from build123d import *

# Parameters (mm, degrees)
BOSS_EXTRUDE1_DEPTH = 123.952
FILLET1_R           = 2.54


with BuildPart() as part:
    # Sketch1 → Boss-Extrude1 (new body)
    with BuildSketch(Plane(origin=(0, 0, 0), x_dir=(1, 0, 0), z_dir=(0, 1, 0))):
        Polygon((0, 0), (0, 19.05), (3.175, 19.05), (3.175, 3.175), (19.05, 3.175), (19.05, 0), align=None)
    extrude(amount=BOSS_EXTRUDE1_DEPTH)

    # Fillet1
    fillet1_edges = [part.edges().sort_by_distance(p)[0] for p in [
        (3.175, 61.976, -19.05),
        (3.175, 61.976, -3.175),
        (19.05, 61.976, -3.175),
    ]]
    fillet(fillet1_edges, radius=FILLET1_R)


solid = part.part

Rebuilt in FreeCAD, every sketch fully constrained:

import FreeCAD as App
import Part
import Sketcher
from FreeCAD import Vector
Q = App.Units.Quantity


def edges_at(feature, points):
    """Names of the edges that pass closest to the given points."""
    edges = feature.Shape.Edges
    near = lambda p: min(range(len(edges)), key=lambda i: edges[i].distToShape(Part.Vertex(*p))[0])
    return sorted({f"Edge{near(p) + 1}" for p in points})

doc = App.newDocument("Part")
body = doc.addObject("PartDesign::Body", "Body")

# Sketch on XZ plane
sketch1 = doc.addObject("Sketcher::SketchObject", "Sketch")
body.addObject(sketch1)
sketch1.AttachmentSupport = (doc.XZ_Plane, [""])
sketch1.MapMode = "FlatFace"
sketch1.addGeometry([
    Part.LineSegment(Vector(0, -19.1, 0), Vector(0, 0, 0)),  # 0
    Part.LineSegment(Vector(0, 0, 0), Vector(19.1, 0, 0)),  # 1
    Part.LineSegment(Vector(19.1, 0, 0), Vector(19.1, -3.2, 0)),  # 2
    Part.LineSegment(Vector(19.1, -3.2, 0), Vector(3.2, -3.2, 0)),  # 3
    Part.LineSegment(Vector(3.2, -3.2, 0), Vector(3.2, -19.1, 0)),  # 4
    Part.LineSegment(Vector(3.2, -19.1, 0), Vector(0, -19.1, 0)),  # 5
], False)
sketch1.addConstraint([
    Sketcher.Constraint("Coincident", 0, 2, 1, 1),
    Sketcher.Constraint("Coincident", 1, 2, 2, 1),
    Sketcher.Constraint("Coincident", 2, 2, 3, 1),
    Sketcher.Constraint("Coincident", 3, 2, 4, 1),
    Sketcher.Constraint("Coincident", 4, 2, 5, 1),
    Sketcher.Constraint("Coincident", 5, 2, 0, 1),
    Sketcher.Constraint("Vertical", 0),
    Sketcher.Constraint("Horizontal", 1),
    Sketcher.Constraint("Vertical", 2),
    Sketcher.Constraint("Horizontal", 3),
    Sketcher.Constraint("Vertical", 4),
    Sketcher.Constraint("Horizontal", 5),
    Sketcher.Constraint("Coincident", 0, 2, -1, 1),
    Sketcher.Constraint("Equal", 1, 0),
    Sketcher.Constraint("Equal", 5, 2),
    Sketcher.Constraint("DistanceX", 1, 1, 1, 2, Q("0.75 in")),
    Sketcher.Constraint("DistanceX", 3, 2, 3, 1, Q("0.625 in")),
])
pad1 = doc.addObject("PartDesign::Pad", "Pad")
body.addObject(pad1)
pad1.Profile = sketch1
pad1.Length = Q("4.88 in")
pad1.Reversed = True
doc.recompute()

fillet = doc.addObject("PartDesign::Fillet", "Fillet")
body.addObject(fillet)
fillet.Base = (pad1, edges_at(pad1, [(3.175, 61.976, -19.05), (3.175, 61.976, -3.175), (19.05, 61.976, -3.175)]))
fillet.Radius = Q("0.1 in")

doc.recompute()
